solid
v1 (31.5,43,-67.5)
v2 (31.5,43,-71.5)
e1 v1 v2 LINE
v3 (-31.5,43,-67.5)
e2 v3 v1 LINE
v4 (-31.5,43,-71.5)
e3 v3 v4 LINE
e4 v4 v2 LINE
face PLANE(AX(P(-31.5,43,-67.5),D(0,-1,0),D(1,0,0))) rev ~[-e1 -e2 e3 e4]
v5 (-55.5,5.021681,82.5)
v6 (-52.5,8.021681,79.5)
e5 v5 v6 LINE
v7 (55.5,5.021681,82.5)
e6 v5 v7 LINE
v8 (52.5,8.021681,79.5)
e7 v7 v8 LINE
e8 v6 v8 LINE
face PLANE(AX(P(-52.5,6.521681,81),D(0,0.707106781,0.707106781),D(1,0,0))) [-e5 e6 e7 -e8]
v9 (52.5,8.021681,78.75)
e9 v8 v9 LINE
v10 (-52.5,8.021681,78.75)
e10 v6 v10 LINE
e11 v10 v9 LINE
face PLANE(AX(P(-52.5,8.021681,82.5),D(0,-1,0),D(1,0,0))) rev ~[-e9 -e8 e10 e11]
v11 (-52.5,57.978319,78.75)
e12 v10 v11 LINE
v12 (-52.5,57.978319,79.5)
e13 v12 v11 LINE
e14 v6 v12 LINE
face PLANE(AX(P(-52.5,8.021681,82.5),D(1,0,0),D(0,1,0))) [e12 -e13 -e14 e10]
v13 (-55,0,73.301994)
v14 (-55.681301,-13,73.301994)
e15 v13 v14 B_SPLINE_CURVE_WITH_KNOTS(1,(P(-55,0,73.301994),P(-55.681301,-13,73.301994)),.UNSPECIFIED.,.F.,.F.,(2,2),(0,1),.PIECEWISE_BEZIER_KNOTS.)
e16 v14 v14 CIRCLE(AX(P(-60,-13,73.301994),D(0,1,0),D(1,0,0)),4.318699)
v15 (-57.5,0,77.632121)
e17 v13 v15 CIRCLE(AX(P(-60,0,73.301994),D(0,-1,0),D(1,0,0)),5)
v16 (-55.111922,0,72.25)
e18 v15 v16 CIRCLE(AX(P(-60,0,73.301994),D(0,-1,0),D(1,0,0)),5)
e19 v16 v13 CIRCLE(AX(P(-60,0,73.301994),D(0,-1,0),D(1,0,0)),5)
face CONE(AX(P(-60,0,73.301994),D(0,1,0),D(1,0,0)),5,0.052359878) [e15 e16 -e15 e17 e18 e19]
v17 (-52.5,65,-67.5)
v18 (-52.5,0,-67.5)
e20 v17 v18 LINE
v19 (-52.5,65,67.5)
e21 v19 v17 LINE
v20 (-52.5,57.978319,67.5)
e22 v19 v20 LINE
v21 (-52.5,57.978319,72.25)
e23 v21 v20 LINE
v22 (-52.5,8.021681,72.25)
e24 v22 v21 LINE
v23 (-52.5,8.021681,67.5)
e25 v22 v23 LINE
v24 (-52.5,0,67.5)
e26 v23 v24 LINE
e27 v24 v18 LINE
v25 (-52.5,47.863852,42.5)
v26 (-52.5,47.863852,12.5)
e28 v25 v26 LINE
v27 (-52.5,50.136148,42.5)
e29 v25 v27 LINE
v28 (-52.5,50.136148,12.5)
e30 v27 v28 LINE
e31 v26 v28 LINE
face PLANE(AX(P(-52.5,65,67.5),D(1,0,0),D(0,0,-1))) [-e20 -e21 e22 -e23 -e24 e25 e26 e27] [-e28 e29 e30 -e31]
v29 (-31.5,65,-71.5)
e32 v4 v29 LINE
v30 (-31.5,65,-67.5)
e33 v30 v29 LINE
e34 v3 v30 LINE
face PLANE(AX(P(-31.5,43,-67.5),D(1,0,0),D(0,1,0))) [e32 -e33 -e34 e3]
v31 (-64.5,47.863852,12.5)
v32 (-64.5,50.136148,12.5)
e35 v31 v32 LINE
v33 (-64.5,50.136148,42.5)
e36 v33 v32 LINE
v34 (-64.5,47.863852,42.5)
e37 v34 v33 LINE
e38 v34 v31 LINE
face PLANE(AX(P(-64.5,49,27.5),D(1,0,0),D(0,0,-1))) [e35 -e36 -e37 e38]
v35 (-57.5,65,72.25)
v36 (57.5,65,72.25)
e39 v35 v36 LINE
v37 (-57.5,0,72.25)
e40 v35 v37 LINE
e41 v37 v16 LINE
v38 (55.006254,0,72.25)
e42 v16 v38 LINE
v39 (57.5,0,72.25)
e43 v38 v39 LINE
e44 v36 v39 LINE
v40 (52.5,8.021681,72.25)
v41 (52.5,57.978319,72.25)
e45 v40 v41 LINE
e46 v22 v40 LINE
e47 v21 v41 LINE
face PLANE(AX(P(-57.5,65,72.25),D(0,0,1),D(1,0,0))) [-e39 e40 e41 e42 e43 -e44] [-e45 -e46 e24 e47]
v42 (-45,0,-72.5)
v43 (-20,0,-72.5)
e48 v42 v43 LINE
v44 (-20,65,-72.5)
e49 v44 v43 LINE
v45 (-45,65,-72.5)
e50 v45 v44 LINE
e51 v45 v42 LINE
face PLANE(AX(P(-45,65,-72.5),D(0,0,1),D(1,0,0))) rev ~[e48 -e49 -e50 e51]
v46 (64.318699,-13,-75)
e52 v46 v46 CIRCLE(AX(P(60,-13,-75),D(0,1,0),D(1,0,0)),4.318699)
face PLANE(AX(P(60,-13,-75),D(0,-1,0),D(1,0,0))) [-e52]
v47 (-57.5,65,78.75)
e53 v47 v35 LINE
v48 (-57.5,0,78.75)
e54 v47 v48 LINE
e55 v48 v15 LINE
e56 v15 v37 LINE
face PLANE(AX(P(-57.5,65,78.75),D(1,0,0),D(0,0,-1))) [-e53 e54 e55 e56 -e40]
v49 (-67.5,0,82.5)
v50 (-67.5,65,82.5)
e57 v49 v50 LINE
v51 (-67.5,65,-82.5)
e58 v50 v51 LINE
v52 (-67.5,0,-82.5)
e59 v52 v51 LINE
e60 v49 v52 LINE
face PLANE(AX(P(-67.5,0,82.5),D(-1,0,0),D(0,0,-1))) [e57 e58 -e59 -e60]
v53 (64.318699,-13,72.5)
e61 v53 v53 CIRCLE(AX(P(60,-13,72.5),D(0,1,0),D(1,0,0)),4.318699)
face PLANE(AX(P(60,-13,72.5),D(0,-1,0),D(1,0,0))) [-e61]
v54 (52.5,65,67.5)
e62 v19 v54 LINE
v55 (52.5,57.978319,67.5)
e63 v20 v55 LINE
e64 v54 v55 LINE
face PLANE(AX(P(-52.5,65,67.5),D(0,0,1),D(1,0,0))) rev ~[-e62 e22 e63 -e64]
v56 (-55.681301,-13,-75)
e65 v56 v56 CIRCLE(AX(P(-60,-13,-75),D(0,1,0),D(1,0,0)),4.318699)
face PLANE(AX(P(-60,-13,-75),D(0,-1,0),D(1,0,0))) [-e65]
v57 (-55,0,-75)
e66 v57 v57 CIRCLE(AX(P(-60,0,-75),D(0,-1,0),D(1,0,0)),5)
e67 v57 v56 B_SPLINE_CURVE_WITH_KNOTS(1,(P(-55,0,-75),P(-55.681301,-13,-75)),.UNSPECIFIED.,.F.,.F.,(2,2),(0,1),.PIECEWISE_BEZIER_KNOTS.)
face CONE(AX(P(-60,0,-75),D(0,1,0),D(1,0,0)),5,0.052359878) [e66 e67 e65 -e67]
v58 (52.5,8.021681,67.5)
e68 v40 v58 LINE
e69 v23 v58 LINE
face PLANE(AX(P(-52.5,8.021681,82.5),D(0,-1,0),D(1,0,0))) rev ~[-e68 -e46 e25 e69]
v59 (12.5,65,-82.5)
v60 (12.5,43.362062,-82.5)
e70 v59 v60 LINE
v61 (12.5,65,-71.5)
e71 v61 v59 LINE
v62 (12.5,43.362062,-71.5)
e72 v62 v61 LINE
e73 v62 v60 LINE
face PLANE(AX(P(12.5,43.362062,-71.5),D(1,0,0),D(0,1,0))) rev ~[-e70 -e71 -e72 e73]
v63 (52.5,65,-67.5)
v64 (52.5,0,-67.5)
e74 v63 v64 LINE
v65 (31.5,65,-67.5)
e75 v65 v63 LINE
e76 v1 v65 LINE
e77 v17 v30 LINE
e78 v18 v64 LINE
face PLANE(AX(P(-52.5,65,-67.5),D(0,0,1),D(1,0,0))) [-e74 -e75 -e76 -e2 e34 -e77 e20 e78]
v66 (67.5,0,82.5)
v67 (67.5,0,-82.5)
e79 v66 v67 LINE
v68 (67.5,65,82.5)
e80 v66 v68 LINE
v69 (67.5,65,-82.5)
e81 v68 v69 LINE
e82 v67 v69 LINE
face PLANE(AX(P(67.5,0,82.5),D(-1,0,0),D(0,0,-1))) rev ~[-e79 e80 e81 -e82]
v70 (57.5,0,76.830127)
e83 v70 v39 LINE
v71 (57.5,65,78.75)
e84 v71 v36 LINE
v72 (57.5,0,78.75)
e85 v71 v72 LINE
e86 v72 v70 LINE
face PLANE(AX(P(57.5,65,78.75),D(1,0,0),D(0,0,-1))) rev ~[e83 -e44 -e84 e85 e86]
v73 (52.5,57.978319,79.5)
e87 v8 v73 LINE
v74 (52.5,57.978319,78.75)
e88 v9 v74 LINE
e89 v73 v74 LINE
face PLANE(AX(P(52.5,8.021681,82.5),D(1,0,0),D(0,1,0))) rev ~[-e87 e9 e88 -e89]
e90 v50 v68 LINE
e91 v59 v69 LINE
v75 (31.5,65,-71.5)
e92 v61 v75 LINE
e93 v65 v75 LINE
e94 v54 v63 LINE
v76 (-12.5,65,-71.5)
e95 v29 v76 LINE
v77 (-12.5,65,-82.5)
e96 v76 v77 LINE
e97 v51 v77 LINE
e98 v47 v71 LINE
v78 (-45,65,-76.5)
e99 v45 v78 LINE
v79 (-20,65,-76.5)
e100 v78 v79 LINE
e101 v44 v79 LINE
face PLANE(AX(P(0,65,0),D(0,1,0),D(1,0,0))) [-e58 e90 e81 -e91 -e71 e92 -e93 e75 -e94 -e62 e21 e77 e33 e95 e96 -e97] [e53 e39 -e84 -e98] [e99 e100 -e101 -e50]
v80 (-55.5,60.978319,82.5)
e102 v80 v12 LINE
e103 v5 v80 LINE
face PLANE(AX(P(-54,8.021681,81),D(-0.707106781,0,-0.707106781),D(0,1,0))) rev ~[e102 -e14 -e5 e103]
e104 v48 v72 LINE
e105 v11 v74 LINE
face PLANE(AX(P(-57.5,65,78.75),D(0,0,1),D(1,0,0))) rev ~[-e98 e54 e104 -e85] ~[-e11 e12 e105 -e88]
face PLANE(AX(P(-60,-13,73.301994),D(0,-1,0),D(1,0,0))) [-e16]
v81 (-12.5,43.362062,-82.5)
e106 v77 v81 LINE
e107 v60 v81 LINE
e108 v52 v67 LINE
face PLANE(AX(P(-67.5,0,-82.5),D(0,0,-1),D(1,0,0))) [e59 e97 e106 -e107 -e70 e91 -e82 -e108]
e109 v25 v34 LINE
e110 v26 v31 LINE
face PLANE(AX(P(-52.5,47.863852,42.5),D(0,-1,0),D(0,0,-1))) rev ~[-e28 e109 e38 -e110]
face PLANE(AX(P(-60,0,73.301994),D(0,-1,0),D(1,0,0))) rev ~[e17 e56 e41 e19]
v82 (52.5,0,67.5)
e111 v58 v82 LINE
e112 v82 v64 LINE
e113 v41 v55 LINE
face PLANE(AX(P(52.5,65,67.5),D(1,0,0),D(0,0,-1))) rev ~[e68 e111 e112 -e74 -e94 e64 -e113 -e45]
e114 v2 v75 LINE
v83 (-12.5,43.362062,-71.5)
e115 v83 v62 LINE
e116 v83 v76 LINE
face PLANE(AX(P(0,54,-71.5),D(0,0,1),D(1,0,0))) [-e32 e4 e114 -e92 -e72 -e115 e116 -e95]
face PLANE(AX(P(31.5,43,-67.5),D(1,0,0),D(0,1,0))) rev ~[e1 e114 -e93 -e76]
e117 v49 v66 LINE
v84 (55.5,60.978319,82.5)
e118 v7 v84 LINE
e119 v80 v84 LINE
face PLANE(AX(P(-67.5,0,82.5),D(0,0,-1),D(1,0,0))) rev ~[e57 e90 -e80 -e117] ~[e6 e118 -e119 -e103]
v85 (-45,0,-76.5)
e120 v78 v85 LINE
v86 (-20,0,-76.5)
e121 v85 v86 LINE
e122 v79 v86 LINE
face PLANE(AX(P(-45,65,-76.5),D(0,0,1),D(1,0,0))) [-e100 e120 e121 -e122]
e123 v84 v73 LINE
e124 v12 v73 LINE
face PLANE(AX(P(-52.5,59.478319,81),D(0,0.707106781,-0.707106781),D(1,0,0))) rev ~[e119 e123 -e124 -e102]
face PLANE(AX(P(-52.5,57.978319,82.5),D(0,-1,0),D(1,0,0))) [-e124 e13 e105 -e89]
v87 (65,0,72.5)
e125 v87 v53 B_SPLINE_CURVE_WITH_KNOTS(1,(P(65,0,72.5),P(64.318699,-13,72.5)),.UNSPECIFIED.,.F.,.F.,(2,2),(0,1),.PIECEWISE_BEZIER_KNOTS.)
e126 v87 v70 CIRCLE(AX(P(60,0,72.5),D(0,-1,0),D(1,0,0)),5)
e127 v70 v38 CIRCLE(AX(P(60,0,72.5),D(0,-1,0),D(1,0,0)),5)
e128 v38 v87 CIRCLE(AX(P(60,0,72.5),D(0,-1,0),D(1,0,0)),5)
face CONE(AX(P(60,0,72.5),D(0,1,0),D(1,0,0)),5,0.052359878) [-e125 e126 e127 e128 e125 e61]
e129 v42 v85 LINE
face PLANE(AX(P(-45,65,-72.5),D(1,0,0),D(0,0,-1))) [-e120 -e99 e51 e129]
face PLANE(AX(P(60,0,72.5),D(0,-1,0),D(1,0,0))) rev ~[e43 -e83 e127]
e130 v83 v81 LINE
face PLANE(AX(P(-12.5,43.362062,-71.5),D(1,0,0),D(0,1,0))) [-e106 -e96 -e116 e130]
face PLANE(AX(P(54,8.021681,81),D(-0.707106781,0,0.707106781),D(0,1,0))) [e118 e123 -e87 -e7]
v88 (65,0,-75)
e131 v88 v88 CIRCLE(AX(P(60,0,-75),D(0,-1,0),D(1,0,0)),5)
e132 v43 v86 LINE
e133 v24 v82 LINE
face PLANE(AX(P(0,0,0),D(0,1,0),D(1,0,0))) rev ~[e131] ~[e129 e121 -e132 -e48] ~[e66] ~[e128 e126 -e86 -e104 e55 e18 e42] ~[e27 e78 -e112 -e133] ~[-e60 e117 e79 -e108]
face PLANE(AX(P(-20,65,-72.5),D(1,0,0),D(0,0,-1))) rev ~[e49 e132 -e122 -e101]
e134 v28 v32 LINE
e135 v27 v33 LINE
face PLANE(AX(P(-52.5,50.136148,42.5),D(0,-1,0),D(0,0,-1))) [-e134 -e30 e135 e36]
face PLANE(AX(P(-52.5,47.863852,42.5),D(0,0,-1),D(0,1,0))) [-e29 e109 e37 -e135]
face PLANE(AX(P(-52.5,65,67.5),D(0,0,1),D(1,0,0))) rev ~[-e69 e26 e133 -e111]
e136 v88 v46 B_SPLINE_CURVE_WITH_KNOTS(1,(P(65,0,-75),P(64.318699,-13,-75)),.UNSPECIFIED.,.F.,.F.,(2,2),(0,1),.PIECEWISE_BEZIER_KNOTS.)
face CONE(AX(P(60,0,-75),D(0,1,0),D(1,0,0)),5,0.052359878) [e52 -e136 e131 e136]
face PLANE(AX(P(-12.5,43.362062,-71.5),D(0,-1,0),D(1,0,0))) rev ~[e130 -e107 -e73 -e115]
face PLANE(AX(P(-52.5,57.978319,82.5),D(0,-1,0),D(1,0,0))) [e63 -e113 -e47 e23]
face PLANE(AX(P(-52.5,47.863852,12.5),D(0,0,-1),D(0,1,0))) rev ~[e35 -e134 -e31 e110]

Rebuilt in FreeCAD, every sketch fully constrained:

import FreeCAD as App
import Part
import Sketcher

V = App.Vector


def edges_at(feature, points):
    """Names of the edges that pass closest to the given points."""
    edges = feature.Shape.Edges
    near = lambda p: min(range(len(edges)), key=lambda i: edges[i].distToShape(Part.Vertex(*p))[0])
    return sorted({f"Edge{near(p) + 1}" for p in points})


def add_polygon(sketch, points):
    """Adds a closed chain of lines whose ends are joined by coincident constraints."""
    first, n = sketch.GeometryCount, len(points)
    for a, b in zip(points, points[1:] + points[:1]):
        sketch.addGeometry(Part.LineSegment(App.Vector(*a, 0), App.Vector(*b, 0)), False)
    for i in range(n):
        sketch.addConstraint(Sketcher.Constraint("Coincident", first + i, 2, first + (i + 1) % n, 1))

doc = App.newDocument("Part")
body = doc.addObject("PartDesign::Body", "Body")

sketch1 = body.newObject("Sketcher::SketchObject", "Sketch")
sketch1.AttachmentSupport = (doc.getObject("XZ_Plane"), [""])
sketch1.MapMode = "FlatFace"
add_polygon(sketch1, [(-68, -82), (-68, 82), (68, 82), (68, -82)])
sketch1.addConstraint(Sketcher.Constraint("Vertical", 0))
sketch1.addConstraint(Sketcher.Constraint("Horizontal", 1))
sketch1.addConstraint(Sketcher.Constraint("Vertical", 2))
sketch1.addConstraint(Sketcher.Constraint("Horizontal", 3))
sketch1.addConstraint(Sketcher.Constraint("Symmetric", 0, 2, 2, 2, -1, 1))
sketch1.addConstraint(Sketcher.Constraint("DistanceX", 1, 1, 1, 2, 135.0))
sketch1.addConstraint(Sketcher.Constraint("DistanceY", 0, 1, 0, 2, 165.0))
pad1 = body.newObject("PartDesign::Pad", "Pad")
pad1.Profile = sketch1
pad1.Length = 65
pad1.Reversed = True

sketch2 = body.newObject("Sketcher::SketchObject", "Sketch001")
sketch2.AttachmentSupport = (doc.getObject("XZ_Plane"), [""])
sketch2.MapMode = "FlatFace"
sketch2.AttachmentOffset = App.Placement(V(0, 0, -65), App.Rotation())
add_polygon(sketch2, [(-52, -68), (-52, 68), (52, 68), (52, -68)])
sketch2.addConstraint(Sketcher.Constraint("Vertical", 0))
sketch2.addConstraint(Sketcher.Constraint("Horizontal", 1))
sketch2.addConstraint(Sketcher.Constraint("Vertical", 2))
sketch2.addConstraint(Sketcher.Constraint("Horizontal", 3))
sketch2.addConstraint(Sketcher.Constraint("Symmetric", 0, 2, 2, 2, -1, 1))
sketch2.addConstraint(Sketcher.Constraint("DistanceX", 1, 1, 1, 2, 105.0))
sketch2.addConstraint(Sketcher.Constraint("DistanceY", 0, 1, 0, 2, 135.0))
pocket1 = body.newObject("PartDesign::Pocket", "Pocket")
pocket1.Profile = sketch2
pocket1.Type = "ThroughAll"
pocket1.Reversed = True

sketch3 = body.newObject("Sketcher::SketchObject", "Sketch002")
sketch3.AttachmentSupport = (doc.getObject("YZ_Plane"), [""])
sketch3.MapMode = "FlatFace"
sketch3.AttachmentOffset = App.Placement(V(0, 0, -52.5), App.Rotation())
add_polygon(sketch3, [(50.1, 42.5), (47.9, 42.5), (47.9, 12.5), (50.1, 12.5)])
sketch3.addConstraint(Sketcher.Constraint("Horizontal", 0))
sketch3.addConstraint(Sketcher.Constraint("Vertical", 1))
sketch3.addConstraint(Sketcher.Constraint("Horizontal", 2))
sketch3.addConstraint(Sketcher.Constraint("Vertical", 3))
sketch3.addConstraint(Sketcher.Constraint("DistanceY", 1, 2, 1, 1, 30.0))
sketch3.addConstraint(Sketcher.Constraint("DistanceY", -1, 1, 0, 2, 42.5))
sketch3.addConstraint(Sketcher.Constraint("DistanceX", 0, 2, 0, 1, 2.272296))
sketch3.addConstraint(Sketcher.Constraint("DistanceX", -1, 1, 0, 2, 47.863852))
pocket2 = body.newObject("PartDesign::Pocket", "Pocket001")
pocket2.Profile = sketch3
pocket2.Length = 12

sketch4 = body.newObject("Sketcher::SketchObject", "Sketch003")
sketch4.AttachmentSupport = (doc.getObject("XZ_Plane"), [""])
sketch4.MapMode = "FlatFace"
sketch4.AttachmentOffset = App.Placement(V(0, 0, -65), App.Rotation())
add_polygon(sketch4, [(-45, -76.5), (-45, -72.5), (-20, -72.5), (-20, -76.5)])
sketch4.addConstraint(Sketcher.Constraint("Vertical", 0))
sketch4.addConstraint(Sketcher.Constraint("Horizontal", 1))
sketch4.addConstraint(Sketcher.Constraint("Vertical", 2))
sketch4.addConstraint(Sketcher.Constraint("Horizontal", 3))
sketch4.addConstraint(Sketcher.Constraint("DistanceX", 1, 1, 1, 2, 25.0))
sketch4.addConstraint(Sketcher.Constraint("DistanceY", 0, 1, 0, 2, 4.0))
sketch4.addConstraint(Sketcher.Constraint("DistanceX", 0, 2, -1, 1, 45.0))
sketch4.addConstraint(Sketcher.Constraint("DistanceY", 0, 2, -1, 1, 72.5))
pocket3 = body.newObject("PartDesign::Pocket", "Pocket002")
pocket3.Profile = sketch4
pocket3.Type = "ThroughAll"
pocket3.Reversed = True

sketch5 = body.newObject("Sketcher::SketchObject", "Sketch004")
sketch5.AttachmentSupport = (doc.getObject("XZ_Plane"), [""])
sketch5.MapMode = "FlatFace"
sketch5.AttachmentOffset = App.Placement(V(0, 0, -65), App.Rotation())
add_polygon(sketch5, [(-58, 72), (-58, 79), (58, 79), (58, 72)])
sketch5.addConstraint(Sketcher.Constraint("Vertical", 0))
sketch5.addConstraint(Sketcher.Constraint("Horizontal", 1))
sketch5.addConstraint(Sketcher.Constraint("Vertical", 2))
sketch5.addConstraint(Sketcher.Constraint("Horizontal", 3))
sketch5.addConstraint(Sketcher.Constraint("DistanceX", 1, 1, 1, 2, 115.0))
sketch5.addConstraint(Sketcher.Constraint("DistanceY", 0, 1, 0, 2, 6.5))
sketch5.addConstraint(Sketcher.Constraint("DistanceX", 0, 2, -1, 1, 57.5))
sketch5.addConstraint(Sketcher.Constraint("DistanceY", -1, 1, 0, 2, 78.75))
pocket4 = body.newObject("PartDesign::Pocket", "Pocket003")
pocket4.Profile = sketch5
pocket4.Type = "ThroughAll"
pocket4.Reversed = True

sketch6 = body.newObject("Sketcher::SketchObject", "Sketch005")
sketch6.AttachmentSupport = (doc.getObject("XZ_Plane"), [""])
sketch6.MapMode = "FlatFace"
sketch6.addGeometry(Part.Circle(V(-60, -75, 0), V(0, 0, 1), 5), False)
sketch6.addConstraint(Sketcher.Constraint("Diameter", 0, 10.0))
sketch6.addConstraint(Sketcher.Constraint("DistanceX", 0, 3, -1, 1, 60.0))
sketch6.addConstraint(Sketcher.Constraint("DistanceY", 0, 3, -1, 1, 75.0))
pad2 = body.newObject("PartDesign::Pad", "Pad001")
pad2.Profile = sketch6
pad2.Length = 13
pad2.TaperAngle = -3

sketch7 = body.newObject("Sketcher::SketchObject", "Sketch006")
sketch7.AttachmentSupport = (doc.getObject("XZ_Plane"), [""])
sketch7.MapMode = "FlatFace"
sketch7.addGeometry(Part.Circle(V(60, -75, 0), V(0, 0, 1), 5), False)
sketch7.addConstraint(Sketcher.Constraint("Diameter", 0, 10.0))
sketch7.addConstraint(Sketcher.Constraint("DistanceX", -1, 1, 0, 3, 60.0))
sketch7.addConstraint(Sketcher.Constraint("DistanceY", 0, 3, -1, 1, 75.0))
pad3 = body.newObject("PartDesign::Pad", "Pad002")
pad3.Profile = sketch7
pad3.Length = 13
pad3.TaperAngle = -3

sketch8 = body.newObject("Sketcher::SketchObject", "Sketch007")
sketch8.AttachmentSupport = (doc.getObject("XZ_Plane"), [""])
sketch8.MapMode = "FlatFace"
sketch8.addGeometry(Part.Circle(V(60, 72, 0), V(0, 0, 1), 5), False)
sketch8.addGeometry(Part.Circle(V(-60, 73, 0), V(0, 0, 1), 5), False)
sketch8.addConstraint(Sketcher.Constraint("Equal", 0, 1))
sketch8.addConstraint(Sketcher.Constraint("Diameter", 0, 10.0))
sketch8.addConstraint(Sketcher.Constraint("DistanceX", -1, 1, 0, 3, 60.0))
sketch8.addConstraint(Sketcher.Constraint("DistanceX", 1, 3, -1, 1, 60.0))
sketch8.addConstraint(Sketcher.Constraint("DistanceY", -1, 1, 0, 3, 72.5))
sketch8.addConstraint(Sketcher.Constraint("DistanceY", -1, 1, 1, 3, 73.301994))
pad4 = body.newObject("PartDesign::Pad", "Pad003")
pad4.Profile = sketch8
pad4.Length = 13
pad4.TaperAngle = -3

sketch9 = body.newObject("Sketcher::SketchObject", "Sketch008")
sketch9.AttachmentSupport = (doc.getObject("XY_Plane"), [""])
sketch9.MapMode = "FlatFace"
sketch9.AttachmentOffset = App.Placement(V(0, 0, 82.5), App.Rotation())
add_polygon(sketch9, [(-52, 58), (-52, 8), (52, 8), (52, 58)])
sketch9.addConstraint(Sketcher.Constraint("Vertical", 0))
sketch9.addConstraint(Sketcher.Constraint("Horizontal", 1))
sketch9.addConstraint(Sketcher.Constraint("Vertical", 2))
sketch9.addConstraint(Sketcher.Constraint("Horizontal", 3))
sketch9.addConstraint(Sketcher.Constraint("DistanceX", 1, 1, 1, 2, 105.0))
sketch9.addConstraint(Sketcher.Constraint("DistanceX", 0, 2, -1, 1, 52.5))
sketch9.addConstraint(Sketcher.Constraint("DistanceY", 0, 2, 0, 1, 49.956639))
sketch9.addConstraint(Sketcher.Constraint("DistanceY", -1, 1, 0, 2, 8.021681))
pocket5 = body.newObject("PartDesign::Pocket", "Pocket004")
pocket5.Profile = sketch9
pocket5.Length = 15
doc.recompute()

chamfer = body.newObject("PartDesign::Chamfer", "Chamfer")
chamfer.Base = (pocket5, edges_at(pocket5, [
    (52.5, 33, 82.5),
    (0, 57.978, 82.5),
    (-52.5, 33, 82.5),
    (0, 8.022, 82.5),
]))
chamfer.Size = 3

sketch10 = body.newObject("Sketcher::SketchObject", "Sketch009")
sketch10.AttachmentSupport = (doc.getObject("XY_Plane"), [""])
sketch10.MapMode = "FlatFace"
sketch10.AttachmentOffset = App.Placement(V(0, 0, -67.5), App.Rotation())
add_polygon(sketch10, [(-32, 65), (-32, 43), (32, 43), (32, 65)])
sketch10.addConstraint(Sketcher.Constraint("Vertical", 0))
sketch10.addConstraint(Sketcher.Constraint("Horizontal", 1))
sketch10.addConstraint(Sketcher.Constraint("Vertical", 2))
sketch10.addConstraint(Sketcher.Constraint("Horizontal", 3))
sketch10.addConstraint(Sketcher.Constraint("DistanceX", 1, 1, 1, 2, 63.0))
sketch10.addConstraint(Sketcher.Constraint("DistanceY", 0, 2, 0, 1, 22.0))
sketch10.addConstraint(Sketcher.Constraint("DistanceY", -1, 1, 0, 2, 43.0))
sketch10.addConstraint(Sketcher.Constraint("DistanceX", 0, 2, -1, 1, 31.5))
pocket6 = body.newObject("PartDesign::Pocket", "Pocket005")
pocket6.Profile = sketch10
pocket6.Length = 4

sketch11 = body.newObject("Sketcher::SketchObject", "Sketch010")
sketch11.AttachmentSupport = (doc.getObject("XY_Plane"), [""])
sketch11.MapMode = "FlatFace"
sketch11.AttachmentOffset = App.Placement(V(0, 0, -71.5), App.Rotation())
add_polygon(sketch11, [(-12, 68), (-12, 43), (12, 43), (12, 68)])
sketch11.addConstraint(Sketcher.Constraint("Vertical", 0))
sketch11.addConstraint(Sketcher.Constraint("Horizontal", 1))
sketch11.addConstraint(Sketcher.Constraint("Vertical", 2))
sketch11.addConstraint(Sketcher.Constraint("Horizontal", 3))
sketch11.addConstraint(Sketcher.Constraint("Equal", 3, 0))
sketch11.addConstraint(Sketcher.Constraint("DistanceX", 1, 1, 1, 2, 25.0))
sketch11.addConstraint(Sketcher.Constraint("DistanceX", 0, 2, -1, 1, 12.5))
sketch11.addConstraint(Sketcher.Constraint("DistanceY", -1, 1, 0, 2, 43.362062))
pocket7 = body.newObject("PartDesign::Pocket", "Pocket006")
pocket7.Profile = sketch11
pocket7.Length = 13

doc.recompute()
